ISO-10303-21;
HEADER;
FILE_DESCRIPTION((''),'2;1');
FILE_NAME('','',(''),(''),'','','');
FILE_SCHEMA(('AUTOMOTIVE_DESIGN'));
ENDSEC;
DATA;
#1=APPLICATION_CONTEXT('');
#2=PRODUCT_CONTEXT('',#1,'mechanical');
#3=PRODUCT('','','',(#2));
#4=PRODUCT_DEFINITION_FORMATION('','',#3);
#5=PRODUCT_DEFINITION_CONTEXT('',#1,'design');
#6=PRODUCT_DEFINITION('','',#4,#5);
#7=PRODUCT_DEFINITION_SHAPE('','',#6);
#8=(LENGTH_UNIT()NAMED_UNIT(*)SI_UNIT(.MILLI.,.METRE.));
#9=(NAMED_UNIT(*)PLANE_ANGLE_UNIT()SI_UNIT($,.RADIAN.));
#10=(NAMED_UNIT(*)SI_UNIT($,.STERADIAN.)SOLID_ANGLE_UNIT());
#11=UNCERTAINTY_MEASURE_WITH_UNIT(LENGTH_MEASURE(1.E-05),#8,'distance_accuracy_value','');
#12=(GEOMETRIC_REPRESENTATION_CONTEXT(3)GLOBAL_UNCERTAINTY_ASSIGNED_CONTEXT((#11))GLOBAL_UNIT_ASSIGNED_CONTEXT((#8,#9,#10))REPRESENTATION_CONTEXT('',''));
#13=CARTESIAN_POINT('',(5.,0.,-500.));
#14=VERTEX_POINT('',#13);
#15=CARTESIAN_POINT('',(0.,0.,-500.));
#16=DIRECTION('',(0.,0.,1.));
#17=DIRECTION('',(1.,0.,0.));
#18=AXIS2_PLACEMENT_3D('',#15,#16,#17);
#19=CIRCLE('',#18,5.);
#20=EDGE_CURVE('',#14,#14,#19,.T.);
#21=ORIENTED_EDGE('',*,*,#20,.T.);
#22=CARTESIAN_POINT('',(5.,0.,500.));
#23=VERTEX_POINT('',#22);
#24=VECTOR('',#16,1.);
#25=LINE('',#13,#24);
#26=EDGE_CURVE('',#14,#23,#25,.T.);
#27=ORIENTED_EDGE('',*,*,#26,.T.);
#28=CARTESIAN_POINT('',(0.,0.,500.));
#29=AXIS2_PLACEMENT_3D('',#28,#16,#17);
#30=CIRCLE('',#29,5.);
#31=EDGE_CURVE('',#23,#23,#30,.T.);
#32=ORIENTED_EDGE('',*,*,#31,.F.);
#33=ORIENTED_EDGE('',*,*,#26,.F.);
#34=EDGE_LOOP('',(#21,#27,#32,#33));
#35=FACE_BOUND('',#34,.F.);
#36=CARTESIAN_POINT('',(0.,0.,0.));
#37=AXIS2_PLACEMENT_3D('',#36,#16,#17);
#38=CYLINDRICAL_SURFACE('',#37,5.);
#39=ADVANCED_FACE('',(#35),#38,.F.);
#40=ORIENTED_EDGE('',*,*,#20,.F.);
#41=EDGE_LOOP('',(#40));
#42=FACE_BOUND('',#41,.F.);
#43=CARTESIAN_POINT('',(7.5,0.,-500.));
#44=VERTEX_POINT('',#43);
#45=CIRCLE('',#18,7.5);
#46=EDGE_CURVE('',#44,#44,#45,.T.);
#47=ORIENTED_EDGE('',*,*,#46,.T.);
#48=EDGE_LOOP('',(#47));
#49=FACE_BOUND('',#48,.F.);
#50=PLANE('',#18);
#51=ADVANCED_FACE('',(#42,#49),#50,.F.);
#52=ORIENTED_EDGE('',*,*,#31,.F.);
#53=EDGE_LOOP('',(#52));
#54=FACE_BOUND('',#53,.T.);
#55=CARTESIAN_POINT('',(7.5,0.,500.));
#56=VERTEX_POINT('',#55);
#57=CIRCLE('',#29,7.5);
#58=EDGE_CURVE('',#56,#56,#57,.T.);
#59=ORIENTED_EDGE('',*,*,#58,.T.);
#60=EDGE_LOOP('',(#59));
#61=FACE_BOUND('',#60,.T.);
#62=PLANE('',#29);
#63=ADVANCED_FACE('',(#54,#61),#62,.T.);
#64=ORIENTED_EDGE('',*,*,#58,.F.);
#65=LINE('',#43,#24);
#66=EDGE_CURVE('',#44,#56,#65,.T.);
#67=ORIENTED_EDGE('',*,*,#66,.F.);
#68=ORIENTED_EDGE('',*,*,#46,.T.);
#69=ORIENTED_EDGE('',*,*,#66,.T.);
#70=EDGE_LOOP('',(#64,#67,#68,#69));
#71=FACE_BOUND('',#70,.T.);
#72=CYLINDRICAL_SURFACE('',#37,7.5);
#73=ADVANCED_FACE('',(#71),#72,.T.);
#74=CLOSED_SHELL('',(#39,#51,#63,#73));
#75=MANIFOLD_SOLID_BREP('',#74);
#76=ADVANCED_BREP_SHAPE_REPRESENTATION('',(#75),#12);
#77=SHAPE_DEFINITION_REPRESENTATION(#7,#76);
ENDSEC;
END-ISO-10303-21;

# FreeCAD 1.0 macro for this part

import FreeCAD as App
import Part
import Sketcher

V = App.Vector
Q = App.Units.Quantity

doc = App.newDocument("Part")
body = doc.addObject("PartDesign::Body", "Body")

sketch1 = body.newObject("Sketcher::SketchObject", "Sketch")
sketch1.AttachmentSupport = (doc.getObject("XY_Plane"), [""])
sketch1.MapMode = "FlatFace"
sketch1.addGeometry(Part.Circle(V(0, 0, 0), V(0, 0, 1), 8), False)
sketch1.addConstraint([
    Sketcher.Constraint("Coincident", 0, 3, -1, 1),
    Sketcher.Constraint("Diameter", 0, Q("15 mm")),
])
pad1 = body.newObject("PartDesign::Pad", "Pad")
pad1.Profile = sketch1
pad1.Length = 1000
pad1.Midplane = True

sketch2 = body.newObject("Sketcher::SketchObject", "Sketch001")
sketch2.AttachmentSupport = (doc.getObject("XY_Plane"), [""])
sketch2.MapMode = "FlatFace"
sketch2.addGeometry(Part.Circle(V(0, 0, 0), V(0, 0, 1), 5), False)
sketch2.addConstraint([
    Sketcher.Constraint("Coincident", 0, 3, -1, 1),
    Sketcher.Constraint("Diameter", 0, Q("10 mm")),
])
pocket1 = body.newObject("PartDesign::Pocket", "Pocket")
pocket1.Profile = sketch2
pocket1.Length = 1000
pocket1.Midplane = True

doc.recompute()
